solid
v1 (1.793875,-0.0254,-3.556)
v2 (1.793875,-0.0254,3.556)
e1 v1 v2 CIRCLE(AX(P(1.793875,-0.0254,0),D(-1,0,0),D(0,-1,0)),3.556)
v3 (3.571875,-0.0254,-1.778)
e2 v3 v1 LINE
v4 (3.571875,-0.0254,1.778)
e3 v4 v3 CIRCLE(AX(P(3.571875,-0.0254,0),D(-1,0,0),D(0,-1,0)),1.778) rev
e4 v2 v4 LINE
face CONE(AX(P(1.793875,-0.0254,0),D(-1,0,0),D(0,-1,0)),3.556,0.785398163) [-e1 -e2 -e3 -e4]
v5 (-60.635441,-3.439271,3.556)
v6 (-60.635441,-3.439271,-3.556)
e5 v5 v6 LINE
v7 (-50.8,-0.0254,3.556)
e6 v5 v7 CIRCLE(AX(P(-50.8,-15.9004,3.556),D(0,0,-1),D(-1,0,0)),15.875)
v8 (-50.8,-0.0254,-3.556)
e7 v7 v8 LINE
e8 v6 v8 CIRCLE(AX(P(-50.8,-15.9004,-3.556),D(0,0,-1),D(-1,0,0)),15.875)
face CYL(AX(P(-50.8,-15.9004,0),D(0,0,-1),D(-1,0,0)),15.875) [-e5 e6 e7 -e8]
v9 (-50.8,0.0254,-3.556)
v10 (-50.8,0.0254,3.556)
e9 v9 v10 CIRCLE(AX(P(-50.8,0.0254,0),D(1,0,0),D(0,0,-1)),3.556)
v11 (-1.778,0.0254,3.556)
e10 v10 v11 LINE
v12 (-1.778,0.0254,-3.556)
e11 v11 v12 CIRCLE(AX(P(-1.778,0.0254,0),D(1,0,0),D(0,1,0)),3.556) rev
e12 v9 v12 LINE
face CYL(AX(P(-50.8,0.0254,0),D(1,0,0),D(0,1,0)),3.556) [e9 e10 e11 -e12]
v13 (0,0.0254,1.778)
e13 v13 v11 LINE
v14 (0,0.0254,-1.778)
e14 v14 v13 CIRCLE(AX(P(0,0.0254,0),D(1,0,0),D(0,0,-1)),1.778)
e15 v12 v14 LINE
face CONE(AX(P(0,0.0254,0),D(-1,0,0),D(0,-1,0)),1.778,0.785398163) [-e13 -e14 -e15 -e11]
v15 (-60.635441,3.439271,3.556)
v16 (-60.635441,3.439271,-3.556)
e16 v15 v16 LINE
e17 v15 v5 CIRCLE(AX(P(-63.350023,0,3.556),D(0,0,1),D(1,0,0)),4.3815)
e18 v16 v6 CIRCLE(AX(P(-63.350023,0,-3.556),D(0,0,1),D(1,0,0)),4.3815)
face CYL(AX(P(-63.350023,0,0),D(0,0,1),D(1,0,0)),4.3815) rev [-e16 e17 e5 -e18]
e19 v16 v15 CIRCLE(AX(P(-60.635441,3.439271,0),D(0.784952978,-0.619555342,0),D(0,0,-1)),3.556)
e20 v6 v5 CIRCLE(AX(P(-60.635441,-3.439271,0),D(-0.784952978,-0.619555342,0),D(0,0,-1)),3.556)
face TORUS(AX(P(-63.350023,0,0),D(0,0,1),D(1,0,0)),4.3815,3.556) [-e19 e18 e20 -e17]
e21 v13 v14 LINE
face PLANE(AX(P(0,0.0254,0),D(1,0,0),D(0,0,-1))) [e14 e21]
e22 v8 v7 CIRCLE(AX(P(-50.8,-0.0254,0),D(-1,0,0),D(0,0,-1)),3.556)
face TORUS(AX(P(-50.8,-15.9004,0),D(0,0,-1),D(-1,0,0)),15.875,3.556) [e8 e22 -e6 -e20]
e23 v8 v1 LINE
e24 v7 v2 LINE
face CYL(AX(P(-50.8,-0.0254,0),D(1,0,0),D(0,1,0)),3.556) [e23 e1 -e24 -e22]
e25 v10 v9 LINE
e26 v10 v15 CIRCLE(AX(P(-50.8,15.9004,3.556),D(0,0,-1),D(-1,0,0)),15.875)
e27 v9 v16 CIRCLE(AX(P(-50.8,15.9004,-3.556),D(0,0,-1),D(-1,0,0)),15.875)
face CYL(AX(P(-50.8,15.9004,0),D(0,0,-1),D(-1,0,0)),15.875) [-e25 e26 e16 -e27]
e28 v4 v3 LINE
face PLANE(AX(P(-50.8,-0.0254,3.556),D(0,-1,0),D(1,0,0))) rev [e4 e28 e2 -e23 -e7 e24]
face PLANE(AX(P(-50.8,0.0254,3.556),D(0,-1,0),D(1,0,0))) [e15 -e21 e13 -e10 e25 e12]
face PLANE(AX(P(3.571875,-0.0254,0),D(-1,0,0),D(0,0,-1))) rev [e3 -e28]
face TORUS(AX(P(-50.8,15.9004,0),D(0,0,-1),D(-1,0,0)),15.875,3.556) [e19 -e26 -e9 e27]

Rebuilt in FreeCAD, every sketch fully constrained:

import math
import FreeCAD as App
import Part
import Sketcher
from FreeCAD import Vector
Q = App.Units.Quantity


def edges_at(feature, points):
    """Names of the edges that pass closest to the given points."""
    edges = feature.Shape.Edges
    near = lambda p: min(range(len(edges)), key=lambda i: edges[i].distToShape(Part.Vertex(*p))[0])
    return sorted({f"Edge{near(p) + 1}" for p in points})

doc = App.newDocument("Part")
params = doc.addObject("Spreadsheet::Sheet", "Params")
for row, (alias, value) in enumerate([
    ("sketch1_radius", "0.14 in"),
    ("sketch2_width", "2 in"),
    ("sketch2_radius", "0.625 in"),
    ("sketch2_width2", "2.140625 in"),
    ("chamfer_size", "0.07 in"),
], start=1):
    params.set(f"A{row}", alias)
    params.set(f"B{row}", "=" + value)
    params.setAlias(f"B{row}", alias)

body = doc.addObject("PartDesign::Body", "Body")

sketch1 = doc.addObject("Sketcher::SketchObject", "Sketch")
body.addObject(sketch1)
sketch1.AttachmentSupport = (doc.YZ_Plane, [""])
sketch1.MapMode = "FlatFace"
sketch1.addGeometry([
    Part.LineSegment(Vector(0, 3.6, 0), Vector(0, -3.6, 0)),
    Part.ArcOfCircle(Part.Circle(Vector(0, 0, 0), Vector(0, 0, 1), 3.6), math.radians(-90), math.radians(90)),
], False)
sketch1.addConstraint([
    Sketcher.Constraint("Coincident", 0, 1, 1, 2),
    Sketcher.Constraint("Coincident", 1, 1, 0, 2),
    Sketcher.Constraint("Vertical", 0),
    Sketcher.Constraint("PointOnObject", 1, 3, -1),
    Sketcher.Constraint("Vertical", 1, 3, 0, 1),
    Sketcher.Constraint("Radius", 1, Q("0.14 in")),
    Sketcher.Constraint("DistanceX", -1, 1, 1, 3, Q("0.001 in")),
])
sketch1.setExpression("Constraints[5]", "Params.sketch1_radius")

sketch2 = doc.addObject("Sketcher::SketchObject", "Sketch001")
body.addObject(sketch2)
sketch2.AttachmentSupport = (doc.XY_Plane, [""])
sketch2.MapMode = "FlatFace"
sketch2.addGeometry([
    Part.LineSegment(Vector(3.6, 0, 0), Vector(-50.8, 0, 0)),
    Part.ArcOfCircle(Part.Circle(Vector(-50.8, -15.9, 0), Vector(0, 0, 1), 15.9), math.radians(90), math.radians(128)),
    Part.ArcOfCircle(Part.Circle(Vector(-63.4, 0, 0), Vector(0, 0, 1), 4.4), math.radians(52), math.radians(308)),
    Part.ArcOfCircle(Part.Circle(Vector(-50.8, 15.9, 0), Vector(0, 0, 1), 15.9), math.radians(-128), math.radians(-90)),
    Part.LineSegment(Vector(-50.8, 0, 0), Vector(0, 0, 0)),
], False)
sketch2.addConstraint([
    Sketcher.Constraint("Tangent", 0, 2, 1, 1),
    Sketcher.Constraint("Tangent", 1, 2, 2, 2),
    Sketcher.Constraint("Tangent", 2, 1, 3, 1),
    Sketcher.Constraint("Tangent", 3, 2, 4, 1),
    Sketcher.Constraint("Horizontal", 0),
    Sketcher.Constraint("Horizontal", 4),
    Sketcher.Constraint("Equal", 1, 3),
    Sketcher.Constraint("Symmetric", 1, 3, 3, 3, -1),
    Sketcher.Constraint("PointOnObject", 4, 2, -2),
    Sketcher.Constraint("DistanceX", 4, 1, 4, 2, Q("2 in")),
    Sketcher.Constraint("Radius", 1, Q("0.625 in")),
    Sketcher.Constraint("Radius", 2, Q("0.1725 in")),
    Sketcher.Constraint("DistanceX", 0, 2, 0, 1, Q("2.140625 in")),
    Sketcher.Constraint("DistanceY", 1, 3, -1, 1, Q("0.626 in")),
])
sketch2.setExpression("Constraints[9]", "Params.sketch2_width")
sketch2.setExpression("Constraints[10]", "Params.sketch2_radius")
sketch2.setExpression("Constraints[12]", "Params.sketch2_width2")
doc.recompute()

additivepipe = doc.addObject("PartDesign::AdditivePipe", "AdditivePipe")
body.addObject(additivepipe)
additivepipe.Profile = sketch1
additivepipe.Spine = (sketch2, ["Edge1", "Edge2", "Edge3", "Edge4", "Edge5"])
doc.recompute()

chamfer = doc.addObject("PartDesign::Chamfer", "Chamfer")
body.addObject(chamfer)
chamfer.Base = (additivepipe, edges_at(additivepipe, [(3.572, -3.581, 0), (0, 3.581, 0)]))
chamfer.setExpression("Size", "Params.chamfer_size")

doc.recompute()
